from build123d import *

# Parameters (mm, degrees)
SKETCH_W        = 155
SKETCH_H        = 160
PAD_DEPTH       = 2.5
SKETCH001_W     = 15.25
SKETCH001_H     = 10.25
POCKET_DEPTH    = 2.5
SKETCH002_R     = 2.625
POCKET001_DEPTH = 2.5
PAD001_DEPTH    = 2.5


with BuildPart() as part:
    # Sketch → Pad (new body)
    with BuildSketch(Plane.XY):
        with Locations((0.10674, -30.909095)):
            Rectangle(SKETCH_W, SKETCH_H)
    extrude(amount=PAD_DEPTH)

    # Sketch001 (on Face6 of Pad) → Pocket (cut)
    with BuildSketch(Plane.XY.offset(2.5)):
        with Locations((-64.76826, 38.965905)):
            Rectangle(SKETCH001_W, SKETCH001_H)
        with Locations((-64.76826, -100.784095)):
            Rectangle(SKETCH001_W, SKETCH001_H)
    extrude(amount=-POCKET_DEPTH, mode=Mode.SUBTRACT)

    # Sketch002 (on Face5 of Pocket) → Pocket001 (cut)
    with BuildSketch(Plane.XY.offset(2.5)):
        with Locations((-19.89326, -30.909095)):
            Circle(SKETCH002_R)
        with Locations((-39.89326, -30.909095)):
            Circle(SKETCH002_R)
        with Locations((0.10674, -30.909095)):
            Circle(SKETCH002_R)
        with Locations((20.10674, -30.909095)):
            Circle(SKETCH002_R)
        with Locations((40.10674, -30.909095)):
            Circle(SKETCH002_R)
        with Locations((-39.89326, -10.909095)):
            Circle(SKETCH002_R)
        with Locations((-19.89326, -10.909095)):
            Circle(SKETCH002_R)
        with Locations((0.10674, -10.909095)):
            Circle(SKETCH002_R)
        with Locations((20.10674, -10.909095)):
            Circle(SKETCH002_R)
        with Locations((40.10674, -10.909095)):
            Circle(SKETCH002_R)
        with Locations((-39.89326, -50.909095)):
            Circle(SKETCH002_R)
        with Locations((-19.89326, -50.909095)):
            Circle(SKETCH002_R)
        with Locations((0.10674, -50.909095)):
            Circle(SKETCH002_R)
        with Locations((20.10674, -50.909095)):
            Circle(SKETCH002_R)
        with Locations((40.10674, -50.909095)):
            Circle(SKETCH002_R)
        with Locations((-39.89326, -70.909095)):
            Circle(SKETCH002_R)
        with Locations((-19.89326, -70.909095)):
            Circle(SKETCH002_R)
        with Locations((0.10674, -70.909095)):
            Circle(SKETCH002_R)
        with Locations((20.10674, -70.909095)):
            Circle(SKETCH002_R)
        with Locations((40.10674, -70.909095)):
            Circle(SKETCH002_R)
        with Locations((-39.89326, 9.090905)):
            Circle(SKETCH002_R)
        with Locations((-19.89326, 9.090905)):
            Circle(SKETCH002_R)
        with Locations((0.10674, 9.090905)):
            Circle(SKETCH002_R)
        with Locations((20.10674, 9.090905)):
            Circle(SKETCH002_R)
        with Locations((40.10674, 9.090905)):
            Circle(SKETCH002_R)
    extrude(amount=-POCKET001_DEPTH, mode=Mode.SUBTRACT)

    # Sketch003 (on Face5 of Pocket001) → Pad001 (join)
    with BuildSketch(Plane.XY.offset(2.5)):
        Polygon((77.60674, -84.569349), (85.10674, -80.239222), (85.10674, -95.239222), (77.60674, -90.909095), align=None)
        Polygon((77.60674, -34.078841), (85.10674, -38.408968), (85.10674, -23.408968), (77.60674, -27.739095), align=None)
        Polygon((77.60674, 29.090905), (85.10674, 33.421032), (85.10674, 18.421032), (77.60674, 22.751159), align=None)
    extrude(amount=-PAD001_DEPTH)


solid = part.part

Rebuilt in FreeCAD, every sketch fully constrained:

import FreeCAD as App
import Part
import Sketcher

V = App.Vector
Q = App.Units.Quantity


def add_polygon(sketch, points):
    """Adds a closed chain of lines whose ends are joined by coincident constraints."""
    first, n = sketch.GeometryCount, len(points)
    for a, b in zip(points, points[1:] + points[:1]):
        sketch.addGeometry(Part.LineSegment(App.Vector(*a, 0), App.Vector(*b, 0)), False)
    for i in range(n):
        sketch.addConstraint(Sketcher.Constraint("Coincident", first + i, 2, first + (i + 1) % n, 1))

doc = App.newDocument("Part")
body = doc.addObject("PartDesign::Body", "Body")

sketch1 = body.newObject("Sketcher::SketchObject", "Sketch")
sketch1.AttachmentSupport = (doc.getObject("XY_Plane"), [""])
sketch1.MapMode = "FlatFace"
add_polygon(sketch1, [(-77, 49), (-77, -111), (78, -111), (78, 49)])
sketch1.addConstraint([
    Sketcher.Constraint("Vertical", 0),
    Sketcher.Constraint("Horizontal", 1),
    Sketcher.Constraint("Vertical", 2),
    Sketcher.Constraint("Horizontal", 3),
    Sketcher.Constraint("DistanceX", 1, 1, 1, 2, 155.0),
    Sketcher.Constraint("DistanceY", 0, 2, 0, 1, 160.0),
    Sketcher.Constraint("DistanceX", 0, 2, -1, 1, 77.39326),
    Sketcher.Constraint("DistanceY", 0, 2, -1, 1, 110.909095),
])
pad1 = body.newObject("PartDesign::Pad", "Pad")
pad1.Profile = sketch1
pad1.Length = 2.5

sketch2 = body.newObject("Sketcher::SketchObject", "Sketch001")
sketch2.AttachmentSupport = (doc.getObject("XY_Plane"), [""])
sketch2.MapMode = "FlatFace"
sketch2.AttachmentOffset = App.Placement(V(0, 0, 2.5), App.Rotation())
add_polygon(sketch2, [(-72, 44), (-72, 34), (-57, 34), (-57, 44)])
add_polygon(sketch2, [(-72, -96), (-72, -106), (-57, -106), (-57, -96)])
sketch2.addConstraint([
    Sketcher.Constraint("Vertical", 0),
    Sketcher.Constraint("Horizontal", 1),
    Sketcher.Constraint("Vertical", 2),
    Sketcher.Constraint("Horizontal", 3),
    Sketcher.Constraint("Vertical", 4),
    Sketcher.Constraint("Horizontal", 5),
    Sketcher.Constraint("Vertical", 6),
    Sketcher.Constraint("Horizontal", 7),
    Sketcher.Constraint("Vertical", 3, 2, 4, 2),
    Sketcher.Constraint("Vertical", 2, 2, 5, 2),
    Sketcher.Constraint("Equal", 2, 4),
    Sketcher.Constraint("DistanceY", 4, 2, 3, 2, 150.0),
    Sketcher.Constraint("DistanceX", 1, 1, 1, 2, 15.25),
    Sketcher.Constraint("DistanceY", 0, 2, 0, 1, 10.25),
    Sketcher.Constraint("DistanceX", 0, 2, -1, 1, 72.39326),
    Sketcher.Constraint("DistanceY", -1, 1, 0, 2, 33.840905),
])
pocket1 = body.newObject("PartDesign::Pocket", "Pocket")
pocket1.Profile = sketch2
pocket1.Length = 2.5

sketch3 = body.newObject("Sketcher::SketchObject", "Sketch002")
sketch3.AttachmentSupport = (doc.getObject("XY_Plane"), [""])
sketch3.MapMode = "FlatFace"
sketch3.AttachmentOffset = App.Placement(V(0, 0, 2.5), App.Rotation())
sketch3.addGeometry([
    Part.Circle(V(-19.9, -30.9, 0), V(0, 0, 1), 2.6),
    Part.Circle(V(-39.9, -30.9, 0), V(0, 0, 1), 2.6),
    Part.Circle(V(0.1, -30.9, 0), V(0, 0, 1), 2.6),
    Part.Circle(V(20.1, -30.9, 0), V(0, 0, 1), 2.6),
    Part.Circle(V(40.1, -30.9, 0), V(0, 0, 1), 2.6),
    Part.Circle(V(-39.9, -10.9, 0), V(0, 0, 1), 2.6),
    Part.Circle(V(-19.9, -10.9, 0), V(0, 0, 1), 2.6),
    Part.Circle(V(0.1, -10.9, 0), V(0, 0, 1), 2.6),
    Part.Circle(V(20.1, -10.9, 0), V(0, 0, 1), 2.6),
    Part.Circle(V(40.1, -10.9, 0), V(0, 0, 1), 2.6),
    Part.Circle(V(-39.9, -50.9, 0), V(0, 0, 1), 2.6),
    Part.Circle(V(-19.9, -50.9, 0), V(0, 0, 1), 2.6),
    Part.Circle(V(0.1, -50.9, 0), V(0, 0, 1), 2.6),
    Part.Circle(V(20.1, -50.9, 0), V(0, 0, 1), 2.6),
    Part.Circle(V(40.1, -50.9, 0), V(0, 0, 1), 2.6),
    Part.Circle(V(-39.9, -70.9, 0), V(0, 0, 1), 2.6),
    Part.Circle(V(-19.9, -70.9, 0), V(0, 0, 1), 2.6),
    Part.Circle(V(0.1, -70.9, 0), V(0, 0, 1), 2.6),
    Part.Circle(V(20.1, -70.9, 0), V(0, 0, 1), 2.6),
    Part.Circle(V(40.1, -70.9, 0), V(0, 0, 1), 2.6),
    Part.Circle(V(-39.9, 9.1, 0), V(0, 0, 1), 2.6),
    Part.Circle(V(-19.9, 9.1, 0), V(0, 0, 1), 2.6),
    Part.Circle(V(0.1, 9.1, 0), V(0, 0, 1), 2.6),
    Part.Circle(V(20.1, 9.1, 0), V(0, 0, 1), 2.6),
    Part.Circle(V(40.1, 9.1, 0), V(0, 0, 1), 2.6),
], False)
sketch3.addConstraint([
    Sketcher.Constraint("Equal", 0, 1),
    Sketcher.Constraint("Equal", 1, 2),
    Sketcher.Constraint("Equal", 2, 3),
    Sketcher.Constraint("Equal", 3, 4),
    Sketcher.Constraint("Equal", 4, 5),
    Sketcher.Constraint("Equal", 5, 6),
    Sketcher.Constraint("Equal", 6, 7),
    Sketcher.Constraint("Equal", 7, 8),
    Sketcher.Constraint("Equal", 8, 9),
    Sketcher.Constraint("Equal", 9, 10),
    Sketcher.Constraint("Equal", 10, 11),
    Sketcher.Constraint("Equal", 11, 12),
    Sketcher.Constraint("Equal", 12, 13),
    Sketcher.Constraint("Equal", 13, 14),
    Sketcher.Constraint("Equal", 14, 15),
    Sketcher.Constraint("Equal", 15, 16),
    Sketcher.Constraint("Equal", 16, 17),
    Sketcher.Constraint("Equal", 17, 18),
    Sketcher.Constraint("Equal", 18, 19),
    Sketcher.Constraint("Equal", 19, 20),
    Sketcher.Constraint("Equal", 20, 21),
    Sketcher.Constraint("Equal", 21, 22),
    Sketcher.Constraint("Equal", 22, 23),
    Sketcher.Constraint("Equal", 23, 24),
    Sketcher.Constraint("Horizontal", 0, 3, 1, 3),
    Sketcher.Constraint("Horizontal", 1, 3, 2, 3),
    Sketcher.Constraint("Horizontal", 2, 3, 3, 3),
    Sketcher.Constraint("Horizontal", 3, 3, 4, 3),
    Sketcher.Constraint("Horizontal", 5, 3, 6, 3),
    Sketcher.Constraint("Horizontal", 6, 3, 7, 3),
    Sketcher.Constraint("Horizontal", 7, 3, 8, 3),
    Sketcher.Constraint("Horizontal", 8, 3, 9, 3),
    Sketcher.Constraint("Horizontal", 10, 3, 11, 3),
    Sketcher.Constraint("Horizontal", 11, 3, 12, 3),
    Sketcher.Constraint("Horizontal", 12, 3, 13, 3),
    Sketcher.Constraint("Horizontal", 13, 3, 14, 3),
    Sketcher.Constraint("Horizontal", 15, 3, 16, 3),
    Sketcher.Constraint("Horizontal", 16, 3, 17, 3),
    Sketcher.Constraint("Horizontal", 17, 3, 18, 3),
    Sketcher.Constraint("Horizontal", 18, 3, 19, 3),
    Sketcher.Constraint("Horizontal", 20, 3, 21, 3),
    Sketcher.Constraint("Horizontal", 21, 3, 22, 3),
    Sketcher.Constraint("Horizontal", 22, 3, 23, 3),
    Sketcher.Constraint("Horizontal", 23, 3, 24, 3),
    Sketcher.Constraint("Vertical", 1, 3, 5, 3),
    Sketcher.Constraint("Vertical", 0, 3, 6, 3),
    Sketcher.Constraint("Vertical", 2, 3, 7, 3),
    Sketcher.Constraint("Vertical", 3, 3, 8, 3),
    Sketcher.Constraint("Vertical", 4, 3, 9, 3),
    Sketcher.Constraint("Vertical", 5, 3, 10, 3),
    Sketcher.Constraint("Vertical", 6, 3, 11, 3),
    Sketcher.Constraint("Vertical", 7, 3, 12, 3),
    Sketcher.Constraint("Vertical", 8, 3, 13, 3),
    Sketcher.Constraint("Vertical", 9, 3, 14, 3),
    Sketcher.Constraint("Vertical", 10, 3, 15, 3),
    Sketcher.Constraint("Vertical", 11, 3, 16, 3),
    Sketcher.Constraint("Vertical", 12, 3, 17, 3),
    Sketcher.Constraint("Vertical", 13, 3, 18, 3),
    Sketcher.Constraint("Vertical", 14, 3, 19, 3),
    Sketcher.Constraint("Vertical", 15, 3, 20, 3),
    Sketcher.Constraint("Vertical", 16, 3, 21, 3),
    Sketcher.Constraint("Vertical", 17, 3, 22, 3),
    Sketcher.Constraint("Vertical", 18, 3, 23, 3),
    Sketcher.Constraint("Vertical", 19, 3, 24, 3),
    Sketcher.Constraint("Diameter", 0, 5.25),
    Sketcher.Constraint("DistanceX", 1, 3, 0, 3, 20.0),
    Sketcher.Constraint("DistanceX", 0, 3, 2, 3, 20.0),
    Sketcher.Constraint("DistanceX", 2, 3, 3, 3, 20.0),
    Sketcher.Constraint("DistanceX", 3, 3, 4, 3, 20.0),
    Sketcher.Constraint("DistanceY", 1, 3, 5, 3, 20.0),
    Sketcher.Constraint("DistanceY", 10, 3, 1, 3, 20.0),
    Sketcher.Constraint("DistanceY", 15, 3, 10, 3, 20.0),
    Sketcher.Constraint("DistanceY", 5, 3, 20, 3, 20.0),
    Sketcher.Constraint("DistanceX", 0, 3, -1, 1, 19.89326),
    Sketcher.Constraint("DistanceY", 0, 3, -1, 1, 30.909095),
])
pocket2 = body.newObject("PartDesign::Pocket", "Pocket001")
pocket2.Profile = sketch3
pocket2.Length = 2.5

sketch4 = body.newObject("Sketcher::SketchObject", "Sketch003")
sketch4.AttachmentSupport = (doc.getObject("XY_Plane"), [""])
sketch4.MapMode = "FlatFace"
sketch4.AttachmentOffset = App.Placement(V(0, 0, 2.5), App.Rotation())
add_polygon(sketch4, [(85, -80), (78, -85), (78, -91), (85, -95)])
add_polygon(sketch4, [(78, -34), (85, -38), (85, -23), (78, -28)])
add_polygon(sketch4, [(85, 33), (78, 29), (78, 23), (85, 18)])
sketch4.addConstraint([
    Sketcher.Constraint("Vertical", 1),
    Sketcher.Constraint("Vertical", 3),
    Sketcher.Constraint("Vertical", 5),
    Sketcher.Constraint("Vertical", 7),
    Sketcher.Constraint("Vertical", 9),
    Sketcher.Constraint("Vertical", 11),
    Sketcher.Constraint("Parallel", 2, 4),
    Sketcher.Constraint("Parallel", 0, 6),
    Sketcher.Constraint("Parallel", 6, 8),
    Sketcher.Constraint("Parallel", 4, 10),
    Sketcher.Constraint("Vertical", 3, 2, 4, 2),
    Sketcher.Constraint("Vertical", 1, 2, 6, 2),
    Sketcher.Constraint("Vertical", 7, 2, 8, 2),
    Sketcher.Constraint("Vertical", 5, 2, 10, 2),
    Sketcher.Constraint("Equal", 3, 5),
    Sketcher.Constraint("Equal", 7, 9),
    Sketcher.Constraint("Equal", 0, 2),
    Sketcher.Constraint("DistanceY", 3, 1, 3, 2, 15.0),
    Sketcher.Constraint("Angle", 0, Q("-150 deg")),
    Sketcher.Constraint("DistanceX", 1, 2, 2, 2, 7.5),
    Sketcher.Constraint("DistanceY", 1, 2, 6, 2, 63.17),
    Sketcher.Constraint("DistanceY", 6, 2, 8, 2, 56.83),
    Sketcher.Constraint("DistanceX", -1, 1, 0, 2, 77.60674),
    Sketcher.Constraint("DistanceY", 0, 2, -1, 1, 84.569349),
])
pad2 = body.newObject("PartDesign::Pad", "Pad001")
pad2.Profile = sketch4
pad2.Length = 2.5
pad2.Reversed = True

doc.recompute()
